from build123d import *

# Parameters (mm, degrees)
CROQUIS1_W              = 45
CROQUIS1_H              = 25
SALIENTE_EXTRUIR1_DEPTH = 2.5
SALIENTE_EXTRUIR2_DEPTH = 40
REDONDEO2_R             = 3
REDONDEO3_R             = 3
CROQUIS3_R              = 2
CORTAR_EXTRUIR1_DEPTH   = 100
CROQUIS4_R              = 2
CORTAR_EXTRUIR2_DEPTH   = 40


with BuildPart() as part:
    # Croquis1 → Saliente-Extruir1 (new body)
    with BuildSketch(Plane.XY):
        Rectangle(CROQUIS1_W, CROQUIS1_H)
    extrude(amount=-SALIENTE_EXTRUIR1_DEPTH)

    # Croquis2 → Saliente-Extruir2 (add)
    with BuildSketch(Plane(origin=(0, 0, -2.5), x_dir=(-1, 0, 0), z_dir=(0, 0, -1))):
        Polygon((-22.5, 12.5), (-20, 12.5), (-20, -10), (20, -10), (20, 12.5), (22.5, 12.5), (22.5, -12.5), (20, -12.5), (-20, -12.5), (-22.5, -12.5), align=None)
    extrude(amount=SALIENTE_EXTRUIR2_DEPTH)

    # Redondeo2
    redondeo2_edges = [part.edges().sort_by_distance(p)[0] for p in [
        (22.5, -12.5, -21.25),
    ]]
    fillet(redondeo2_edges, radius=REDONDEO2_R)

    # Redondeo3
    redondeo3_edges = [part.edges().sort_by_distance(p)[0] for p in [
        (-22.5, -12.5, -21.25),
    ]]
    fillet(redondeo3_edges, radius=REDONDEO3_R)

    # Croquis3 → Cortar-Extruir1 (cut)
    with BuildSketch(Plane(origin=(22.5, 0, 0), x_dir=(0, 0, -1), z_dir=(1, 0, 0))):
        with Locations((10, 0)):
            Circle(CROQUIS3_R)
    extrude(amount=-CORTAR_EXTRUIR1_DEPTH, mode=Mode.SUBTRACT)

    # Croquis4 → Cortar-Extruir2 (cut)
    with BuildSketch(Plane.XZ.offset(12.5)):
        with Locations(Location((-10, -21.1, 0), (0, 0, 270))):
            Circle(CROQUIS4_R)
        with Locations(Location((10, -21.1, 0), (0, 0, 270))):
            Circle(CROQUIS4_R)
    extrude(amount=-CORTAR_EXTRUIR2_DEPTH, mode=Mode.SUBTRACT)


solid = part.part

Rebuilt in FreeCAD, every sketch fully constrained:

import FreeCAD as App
import Part
import Sketcher
Q = App.Units.Quantity


def edges_at(feature, points):
    """Names of the edges that pass closest to the given points."""
    edges = feature.Shape.Edges
    near = lambda p: min(range(len(edges)), key=lambda i: edges[i].distToShape(Part.Vertex(*p))[0])
    return sorted({f"Edge{near(p) + 1}" for p in points})

doc = App.newDocument("Part")
body = doc.addObject("PartDesign::Body", "Body")

sketch1 = doc.addObject("Sketcher::SketchObject", "Sketch")
body.addObject(sketch1)
sketch1.AttachmentSupport = (doc.XY_Plane, [""])
sketch1.MapMode = "FlatFace"
sketch1.addGeometry([
    Part.LineSegment(App.Vector(-22, 12, 0), App.Vector(-22, -12, 0)),
    Part.LineSegment(App.Vector(-22, -12, 0), App.Vector(22, -12, 0)),
    Part.LineSegment(App.Vector(22, -12, 0), App.Vector(22, 12, 0)),
    Part.LineSegment(App.Vector(22, 12, 0), App.Vector(-22, 12, 0)),
], False)
sketch1.addConstraint([
    Sketcher.Constraint("Coincident", 0, 2, 1, 1),
    Sketcher.Constraint("Coincident", 1, 2, 2, 1),
    Sketcher.Constraint("Coincident", 2, 2, 3, 1),
    Sketcher.Constraint("Coincident", 3, 2, 0, 1),
    Sketcher.Constraint("Vertical", 0),
    Sketcher.Constraint("Horizontal", 1),
    Sketcher.Constraint("Vertical", 2),
    Sketcher.Constraint("Horizontal", 3),
    Sketcher.Constraint("Symmetric", 0, 2, 2, 2, -1, 1),
    Sketcher.Constraint("DistanceX", 1, 1, 1, 2, Q("45 mm")),
    Sketcher.Constraint("DistanceY", 0, 2, 0, 1, Q("25 mm")),
])
pad1 = doc.addObject("PartDesign::Pad", "Pad")
body.addObject(pad1)
pad1.Profile = sketch1
pad1.Length = 2.5
pad1.Reversed = True

sketch2 = doc.addObject("Sketcher::SketchObject", "Sketch001")
body.addObject(sketch2)
sketch2.AttachmentSupport = (doc.XY_Plane, [""])
sketch2.MapMode = "FlatFace"
sketch2.AttachmentOffset = App.Placement(App.Vector(0, 0, -2.5), App.Rotation())
sketch2.addGeometry([
    Part.LineSegment(App.Vector(20, 12.5, 0), App.Vector(22.5, 12.5, 0)),
    Part.LineSegment(App.Vector(22.5, 12.5, 0), App.Vector(22.5, -12.5, 0)),
    Part.LineSegment(App.Vector(22.5, -12.5, 0), App.Vector(-22.5, -12.5, 0)),
    Part.LineSegment(App.Vector(-22.5, -12.5, 0), App.Vector(-22.5, 12.5, 0)),
    Part.LineSegment(App.Vector(-22.5, 12.5, 0), App.Vector(-20, 12.5, 0)),
    Part.LineSegment(App.Vector(-20, 12.5, 0), App.Vector(-20, -10, 0)),
    Part.LineSegment(App.Vector(-20, -10, 0), App.Vector(20, -10, 0)),
    Part.LineSegment(App.Vector(20, -10, 0), App.Vector(20, 12.5, 0)),
], False)
sketch2.addConstraint([
    Sketcher.Constraint("Coincident", 0, 2, 1, 1),
    Sketcher.Constraint("Coincident", 1, 2, 2, 1),
    Sketcher.Constraint("Coincident", 2, 2, 3, 1),
    Sketcher.Constraint("Coincident", 3, 2, 4, 1),
    Sketcher.Constraint("Coincident", 4, 2, 5, 1),
    Sketcher.Constraint("Coincident", 5, 2, 6, 1),
    Sketcher.Constraint("Coincident", 6, 2, 7, 1),
    Sketcher.Constraint("Coincident", 7, 2, 0, 1),
    Sketcher.Constraint("Horizontal", 0),
    Sketcher.Constraint("Vertical", 1),
    Sketcher.Constraint("Horizontal", 2),
    Sketcher.Constraint("Vertical", 3),
    Sketcher.Constraint("Horizontal", 4),
    Sketcher.Constraint("Vertical", 5),
    Sketcher.Constraint("Horizontal", 6),
    Sketcher.Constraint("Vertical", 7),
    Sketcher.Constraint("Symmetric", 0, 2, 2, 2, -1, 1),
    Sketcher.Constraint("Symmetric", 4, 2, 7, 2, -2),
    Sketcher.Constraint("DistanceX", 2, 2, 2, 1, Q("45 mm")),
    Sketcher.Constraint("DistanceX", 6, 1, 6, 2, Q("40 mm")),
    Sketcher.Constraint("DistanceY", 1, 2, 1, 1, Q("25 mm")),
    Sketcher.Constraint("DistanceY", 5, 2, 5, 1, Q("22.5 mm")),
])
pad2 = doc.addObject("PartDesign::Pad", "Pad001")
body.addObject(pad2)
pad2.Profile = sketch2
pad2.Length = 40
pad2.Reversed = True
doc.recompute()

fillet = doc.addObject("PartDesign::Fillet", "Fillet")
body.addObject(fillet)
fillet.Base = (pad2, edges_at(pad2, [(22.5, -12.5, -21.25)]))
fillet.Radius = 3
doc.recompute()

fillet2 = doc.addObject("PartDesign::Fillet", "Fillet001")
body.addObject(fillet2)
fillet2.Base = (fillet, edges_at(fillet, [(-22.5, -12.5, -21.25)]))
fillet2.Radius = 3

sketch3 = doc.addObject("Sketcher::SketchObject", "Sketch002")
body.addObject(sketch3)
sketch3.AttachmentSupport = (doc.YZ_Plane, [""])
sketch3.MapMode = "FlatFace"
sketch3.AttachmentOffset = App.Placement(App.Vector(0, 0, 22.5), App.Rotation())
sketch3.addGeometry(Part.Circle(App.Vector(0, -10, 0), App.Vector(0, 0, 1), 2), False)
sketch3.addConstraint([
    Sketcher.Constraint("PointOnObject", 0, 3, -2),
    Sketcher.Constraint("Diameter", 0, Q("4 mm")),
    Sketcher.Constraint("DistanceY", 0, 3, -1, 1, Q("10 mm")),
])
pocket1 = doc.addObject("PartDesign::Pocket", "Pocket")
body.addObject(pocket1)
pocket1.Profile = sketch3
pocket1.Length = 100

sketch4 = doc.addObject("Sketcher::SketchObject", "Sketch003")
body.addObject(sketch4)
sketch4.AttachmentSupport = (doc.XZ_Plane, [""])
sketch4.MapMode = "FlatFace"
sketch4.AttachmentOffset = App.Placement(App.Vector(0, 0, 12.5), App.Rotation())
sketch4.addGeometry([
    Part.Circle(App.Vector(-10, -21.1, 0), App.Vector(0, 0, 1), 2),
    Part.Circle(App.Vector(10, -21.1, 0), App.Vector(0, 0, 1), 2),
], False)
sketch4.addConstraint([
    Sketcher.Constraint("Equal", 0, 1),
    Sketcher.Constraint("Symmetric", 0, 3, 1, 3, -2),
    Sketcher.Constraint("Diameter", 0, Q("4 mm")),
    Sketcher.Constraint("DistanceX", 0, 3, -1, 1, Q("10 mm")),
    Sketcher.Constraint("DistanceY", 0, 3, -1, 1, Q("21.1 mm")),
])
pocket2 = doc.addObject("PartDesign::Pocket", "Pocket001")
body.addObject(pocket2)
pocket2.Profile = sketch4
pocket2.Length = 40

doc.recompute()
